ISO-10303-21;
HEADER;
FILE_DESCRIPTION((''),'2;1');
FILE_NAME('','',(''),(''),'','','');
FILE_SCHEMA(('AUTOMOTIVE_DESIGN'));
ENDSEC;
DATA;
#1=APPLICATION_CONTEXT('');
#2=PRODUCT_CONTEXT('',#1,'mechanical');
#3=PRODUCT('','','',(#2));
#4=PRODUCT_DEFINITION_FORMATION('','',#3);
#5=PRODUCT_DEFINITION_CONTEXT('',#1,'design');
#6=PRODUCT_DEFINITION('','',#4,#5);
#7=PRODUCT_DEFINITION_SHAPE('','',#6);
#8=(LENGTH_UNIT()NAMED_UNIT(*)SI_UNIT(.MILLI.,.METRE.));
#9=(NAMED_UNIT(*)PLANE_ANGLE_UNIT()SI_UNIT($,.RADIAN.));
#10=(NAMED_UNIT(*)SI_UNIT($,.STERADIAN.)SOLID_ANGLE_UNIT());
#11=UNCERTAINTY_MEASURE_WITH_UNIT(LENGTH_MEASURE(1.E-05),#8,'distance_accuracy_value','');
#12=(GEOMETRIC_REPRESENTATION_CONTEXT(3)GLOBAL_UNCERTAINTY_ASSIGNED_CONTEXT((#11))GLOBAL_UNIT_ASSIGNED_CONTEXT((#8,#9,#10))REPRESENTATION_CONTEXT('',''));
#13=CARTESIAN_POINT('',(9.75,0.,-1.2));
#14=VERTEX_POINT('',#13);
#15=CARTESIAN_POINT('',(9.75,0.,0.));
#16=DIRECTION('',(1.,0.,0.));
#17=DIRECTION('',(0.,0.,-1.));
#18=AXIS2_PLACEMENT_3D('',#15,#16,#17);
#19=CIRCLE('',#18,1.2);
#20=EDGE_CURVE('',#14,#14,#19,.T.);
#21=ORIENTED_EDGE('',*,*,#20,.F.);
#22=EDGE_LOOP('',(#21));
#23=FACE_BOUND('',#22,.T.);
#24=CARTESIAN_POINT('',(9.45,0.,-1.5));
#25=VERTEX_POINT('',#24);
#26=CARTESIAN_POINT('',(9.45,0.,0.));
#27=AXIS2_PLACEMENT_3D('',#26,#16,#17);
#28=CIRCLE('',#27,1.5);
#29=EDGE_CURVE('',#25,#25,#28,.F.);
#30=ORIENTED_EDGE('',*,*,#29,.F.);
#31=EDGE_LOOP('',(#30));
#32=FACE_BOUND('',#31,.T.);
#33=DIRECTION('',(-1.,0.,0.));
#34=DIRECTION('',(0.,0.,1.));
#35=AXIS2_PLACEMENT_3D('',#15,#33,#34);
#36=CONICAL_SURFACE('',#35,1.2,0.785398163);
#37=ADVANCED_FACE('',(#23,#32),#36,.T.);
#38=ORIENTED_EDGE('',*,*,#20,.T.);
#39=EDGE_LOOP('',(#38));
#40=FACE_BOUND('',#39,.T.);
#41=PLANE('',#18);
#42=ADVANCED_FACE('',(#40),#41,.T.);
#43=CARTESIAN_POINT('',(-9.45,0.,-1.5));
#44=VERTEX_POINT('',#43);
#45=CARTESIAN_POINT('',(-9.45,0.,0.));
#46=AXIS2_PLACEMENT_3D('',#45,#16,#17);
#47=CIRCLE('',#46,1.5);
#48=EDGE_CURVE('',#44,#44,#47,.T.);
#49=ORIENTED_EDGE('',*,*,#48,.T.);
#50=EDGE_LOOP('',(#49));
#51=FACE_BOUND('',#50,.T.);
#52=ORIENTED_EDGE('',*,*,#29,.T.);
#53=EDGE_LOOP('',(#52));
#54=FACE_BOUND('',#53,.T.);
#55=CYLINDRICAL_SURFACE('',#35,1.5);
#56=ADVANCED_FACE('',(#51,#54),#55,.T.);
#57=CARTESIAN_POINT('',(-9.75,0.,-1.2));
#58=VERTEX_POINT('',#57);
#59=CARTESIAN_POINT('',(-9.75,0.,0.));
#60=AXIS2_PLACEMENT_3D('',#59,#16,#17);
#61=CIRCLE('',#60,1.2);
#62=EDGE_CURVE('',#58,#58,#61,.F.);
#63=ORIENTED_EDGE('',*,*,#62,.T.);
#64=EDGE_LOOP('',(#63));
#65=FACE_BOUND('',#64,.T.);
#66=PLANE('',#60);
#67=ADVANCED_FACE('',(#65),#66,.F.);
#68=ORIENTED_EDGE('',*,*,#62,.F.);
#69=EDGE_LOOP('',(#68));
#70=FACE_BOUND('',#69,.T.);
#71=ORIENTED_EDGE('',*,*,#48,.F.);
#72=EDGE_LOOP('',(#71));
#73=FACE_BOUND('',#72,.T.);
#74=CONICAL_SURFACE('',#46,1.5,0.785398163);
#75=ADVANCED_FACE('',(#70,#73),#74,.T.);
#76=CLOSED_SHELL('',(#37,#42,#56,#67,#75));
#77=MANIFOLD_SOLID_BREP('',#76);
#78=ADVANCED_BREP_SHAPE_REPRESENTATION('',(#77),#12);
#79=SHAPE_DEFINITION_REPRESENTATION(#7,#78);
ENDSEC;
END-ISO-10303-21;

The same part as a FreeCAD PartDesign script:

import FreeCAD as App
import Part
import Sketcher


def edges_at(feature, points):
    """Names of the edges that pass closest to the given points."""
    edges = feature.Shape.Edges
    near = lambda p: min(range(len(edges)), key=lambda i: edges[i].distToShape(Part.Vertex(*p))[0])
    return sorted({f"Edge{near(p) + 1}" for p in points})

doc = App.newDocument("Part")
body = doc.addObject("PartDesign::Body", "Body")

# Sketch on YZ plane
sketch1 = doc.addObject("Sketcher::SketchObject", "Sketch")
body.addObject(sketch1)
sketch1.AttachmentSupport = (doc.YZ_Plane, [""])
sketch1.MapMode = "FlatFace"
sketch1.addGeometry(Part.Circle(App.Vector(0, 0, 0), App.Vector(0, 0, 1), 1.5), False)
sketch1.addConstraint(Sketcher.Constraint("Coincident", 0, 3, -1, 1))
sketch1.addConstraint(Sketcher.Constraint("Diameter", 0, 3.0))
pad1 = doc.addObject("PartDesign::Pad", "Pad")
body.addObject(pad1)
pad1.Profile = sketch1
pad1.Length = 19.5
pad1.Midplane = True
doc.recompute()

chamfer = doc.addObject("PartDesign::Chamfer", "Chamfer")
body.addObject(chamfer)
chamfer.Base = (pad1, edges_at(pad1, [(-9.75, 0, 1.5), (9.75, 0, 1.5)]))
chamfer.Size = 0.3

doc.recompute()
